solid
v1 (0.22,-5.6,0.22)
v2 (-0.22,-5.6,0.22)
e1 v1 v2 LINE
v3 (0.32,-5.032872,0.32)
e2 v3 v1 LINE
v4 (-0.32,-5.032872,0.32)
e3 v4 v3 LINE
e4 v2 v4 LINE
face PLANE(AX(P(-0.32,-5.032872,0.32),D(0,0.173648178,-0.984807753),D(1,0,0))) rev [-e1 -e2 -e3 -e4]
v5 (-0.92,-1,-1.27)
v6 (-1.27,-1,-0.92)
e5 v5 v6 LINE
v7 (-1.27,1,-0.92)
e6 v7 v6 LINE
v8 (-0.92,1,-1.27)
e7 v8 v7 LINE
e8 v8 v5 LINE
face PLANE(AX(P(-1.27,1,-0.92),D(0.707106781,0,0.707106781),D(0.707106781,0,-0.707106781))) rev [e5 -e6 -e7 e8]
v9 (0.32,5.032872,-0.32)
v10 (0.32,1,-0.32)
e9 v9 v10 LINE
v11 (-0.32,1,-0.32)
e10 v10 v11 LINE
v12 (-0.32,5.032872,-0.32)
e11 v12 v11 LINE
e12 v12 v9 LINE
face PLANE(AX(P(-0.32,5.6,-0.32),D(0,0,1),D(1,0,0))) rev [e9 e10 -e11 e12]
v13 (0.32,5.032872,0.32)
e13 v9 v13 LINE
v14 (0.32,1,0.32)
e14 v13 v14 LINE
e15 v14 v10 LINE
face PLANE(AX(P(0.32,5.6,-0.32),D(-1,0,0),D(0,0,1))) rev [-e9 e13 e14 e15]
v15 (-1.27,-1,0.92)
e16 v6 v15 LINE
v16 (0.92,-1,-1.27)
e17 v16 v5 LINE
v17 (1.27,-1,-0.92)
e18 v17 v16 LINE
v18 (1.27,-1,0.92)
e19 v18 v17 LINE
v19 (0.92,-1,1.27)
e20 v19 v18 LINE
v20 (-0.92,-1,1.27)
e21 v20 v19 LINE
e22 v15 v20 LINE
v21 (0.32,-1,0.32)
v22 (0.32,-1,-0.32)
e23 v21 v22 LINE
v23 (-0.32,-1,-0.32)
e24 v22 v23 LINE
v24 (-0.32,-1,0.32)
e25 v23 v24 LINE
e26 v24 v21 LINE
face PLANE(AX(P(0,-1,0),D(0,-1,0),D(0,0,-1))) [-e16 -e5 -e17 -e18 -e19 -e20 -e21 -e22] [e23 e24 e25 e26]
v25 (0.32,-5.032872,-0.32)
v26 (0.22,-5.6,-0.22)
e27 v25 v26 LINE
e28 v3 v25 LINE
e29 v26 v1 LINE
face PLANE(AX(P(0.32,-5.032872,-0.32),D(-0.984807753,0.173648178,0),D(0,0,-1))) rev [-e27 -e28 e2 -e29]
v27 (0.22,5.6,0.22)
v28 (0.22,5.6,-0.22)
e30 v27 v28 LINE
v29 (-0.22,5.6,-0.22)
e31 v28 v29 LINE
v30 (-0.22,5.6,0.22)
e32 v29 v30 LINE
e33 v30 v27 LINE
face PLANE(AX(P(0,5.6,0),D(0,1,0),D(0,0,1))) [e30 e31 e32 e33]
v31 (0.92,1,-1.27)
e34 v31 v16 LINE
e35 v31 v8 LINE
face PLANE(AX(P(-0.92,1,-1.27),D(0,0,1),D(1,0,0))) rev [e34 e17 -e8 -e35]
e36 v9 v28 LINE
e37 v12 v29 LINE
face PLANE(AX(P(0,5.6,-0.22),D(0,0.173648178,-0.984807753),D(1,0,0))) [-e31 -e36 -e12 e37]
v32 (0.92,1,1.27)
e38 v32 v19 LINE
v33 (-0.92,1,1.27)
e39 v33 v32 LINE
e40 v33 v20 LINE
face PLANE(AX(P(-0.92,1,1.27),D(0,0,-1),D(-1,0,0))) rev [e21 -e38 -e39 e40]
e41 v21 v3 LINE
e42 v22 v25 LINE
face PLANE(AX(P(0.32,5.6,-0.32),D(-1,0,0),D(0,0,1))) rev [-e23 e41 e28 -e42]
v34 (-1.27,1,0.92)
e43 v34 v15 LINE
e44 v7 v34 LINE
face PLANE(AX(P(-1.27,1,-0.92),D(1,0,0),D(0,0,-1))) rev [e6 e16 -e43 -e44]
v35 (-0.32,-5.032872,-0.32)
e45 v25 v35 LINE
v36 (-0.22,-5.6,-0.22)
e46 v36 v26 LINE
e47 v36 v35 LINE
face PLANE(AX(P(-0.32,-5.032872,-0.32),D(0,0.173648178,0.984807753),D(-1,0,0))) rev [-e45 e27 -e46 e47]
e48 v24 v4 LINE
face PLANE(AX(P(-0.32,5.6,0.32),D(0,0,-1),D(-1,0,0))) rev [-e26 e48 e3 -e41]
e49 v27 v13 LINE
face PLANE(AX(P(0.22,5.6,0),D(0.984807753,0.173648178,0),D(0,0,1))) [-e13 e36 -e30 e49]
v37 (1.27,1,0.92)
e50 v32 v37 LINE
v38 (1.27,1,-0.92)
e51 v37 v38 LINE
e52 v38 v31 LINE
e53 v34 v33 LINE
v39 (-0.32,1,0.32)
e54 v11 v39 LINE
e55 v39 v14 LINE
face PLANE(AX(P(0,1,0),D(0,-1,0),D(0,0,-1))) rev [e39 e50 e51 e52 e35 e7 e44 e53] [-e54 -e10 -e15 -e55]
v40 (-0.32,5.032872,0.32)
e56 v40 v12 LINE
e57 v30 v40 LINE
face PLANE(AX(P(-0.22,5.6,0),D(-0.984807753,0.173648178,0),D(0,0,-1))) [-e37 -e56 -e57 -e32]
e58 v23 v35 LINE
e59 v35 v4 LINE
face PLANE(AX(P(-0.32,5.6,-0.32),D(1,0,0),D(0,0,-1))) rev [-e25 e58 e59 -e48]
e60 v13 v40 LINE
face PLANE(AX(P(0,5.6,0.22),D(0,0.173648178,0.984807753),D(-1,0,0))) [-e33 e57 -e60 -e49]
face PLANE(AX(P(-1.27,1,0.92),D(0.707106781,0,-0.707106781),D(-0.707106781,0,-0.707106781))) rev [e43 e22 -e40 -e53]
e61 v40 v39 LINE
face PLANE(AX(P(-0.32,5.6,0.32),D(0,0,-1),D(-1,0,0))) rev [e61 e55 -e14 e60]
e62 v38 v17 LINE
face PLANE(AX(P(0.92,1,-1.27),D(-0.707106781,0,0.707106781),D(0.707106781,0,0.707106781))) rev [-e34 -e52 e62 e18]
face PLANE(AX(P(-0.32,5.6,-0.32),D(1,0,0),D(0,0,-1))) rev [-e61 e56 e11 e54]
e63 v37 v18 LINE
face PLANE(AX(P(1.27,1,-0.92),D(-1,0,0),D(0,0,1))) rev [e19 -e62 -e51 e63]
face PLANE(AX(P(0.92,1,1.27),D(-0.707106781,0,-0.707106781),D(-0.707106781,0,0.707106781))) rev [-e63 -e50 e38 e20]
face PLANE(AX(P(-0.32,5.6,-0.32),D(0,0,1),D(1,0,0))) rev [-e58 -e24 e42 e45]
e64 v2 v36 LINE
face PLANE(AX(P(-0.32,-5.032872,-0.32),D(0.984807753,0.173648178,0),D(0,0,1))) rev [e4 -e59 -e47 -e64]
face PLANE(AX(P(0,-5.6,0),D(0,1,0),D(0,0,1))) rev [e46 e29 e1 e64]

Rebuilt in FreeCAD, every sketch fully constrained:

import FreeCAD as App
import Part
import Sketcher
from FreeCAD import Vector


def edges_at(feature, points):
    """Names of the edges that pass closest to the given points."""
    edges = feature.Shape.Edges
    near = lambda p: min(range(len(edges)), key=lambda i: edges[i].distToShape(Part.Vertex(*p))[0])
    return sorted({f"Edge{near(p) + 1}" for p in points})


def add_polygon(sketch, points):
    """Adds a closed chain of lines whose ends are joined by coincident constraints."""
    first, n = sketch.GeometryCount, len(points)
    for a, b in zip(points, points[1:] + points[:1]):
        sketch.addGeometry(Part.LineSegment(App.Vector(*a, 0), App.Vector(*b, 0)), False)
    for i in range(n):
        sketch.addConstraint(Sketcher.Constraint("Coincident", first + i, 2, first + (i + 1) % n, 1))

doc = App.newDocument("Part")
body = doc.addObject("PartDesign::Body", "Body")

# Sketch on XZ plane
sketch1 = body.newObject("Sketcher::SketchObject", "Sketch")
sketch1.AttachmentSupport = (doc.getObject("XZ_Plane"), [""])
sketch1.MapMode = "FlatFace"
add_polygon(sketch1, [(-0.92, -1.27), (-1.27, -0.92), (-1.27, 0.92), (-0.92, 1.27), (0.92, 1.27), (1.27, 0.92), (1.27, -0.92), (0.92, -1.27)])  # lines 0-7
sketch1.addConstraint([
    Sketcher.Constraint("Vertical", 1),
    Sketcher.Constraint("Horizontal", 3),
    Sketcher.Constraint("Vertical", 5),
    Sketcher.Constraint("Horizontal", 7),
    Sketcher.Constraint("Symmetric", 0, 2, 4, 2, -1, 1),
    Sketcher.Constraint("Symmetric", 2, 2, 6, 2, -1, 1),
    Sketcher.Constraint("Perpendicular", 0, 2),
    Sketcher.Constraint("Perpendicular", 2, 4),
    Sketcher.Constraint("Perpendicular", 4, 6),
    Sketcher.Constraint("Horizontal", 1, 2, 4, 2),
    Sketcher.Constraint("Vertical", 3, 2, 6, 2),
    Sketcher.Constraint("Equal", 7, 1),
    Sketcher.Constraint("DistanceX", 3, 1, 3, 2, 1.84),
    Sketcher.Constraint("DistanceX", 0, 2, -1, 1, 1.27),
])
pad1 = body.newObject("PartDesign::Pad", "Pad")
pad1.Profile = sketch1
pad1.Length = 2
pad1.Midplane = True

# Sketch on XZ plane
sketch2 = body.newObject("Sketcher::SketchObject", "Sketch001")
sketch2.AttachmentSupport = (doc.getObject("XZ_Plane"), [""])
sketch2.MapMode = "FlatFace"
add_polygon(sketch2, [(-0.32, -0.32), (-0.32, 0.32), (0.32, 0.32), (0.32, -0.32)])  # lines 0-3
sketch2.addConstraint([
    Sketcher.Constraint("Vertical", 0),
    Sketcher.Constraint("Horizontal", 1),
    Sketcher.Constraint("Vertical", 2),
    Sketcher.Constraint("Horizontal", 3),
    Sketcher.Constraint("Symmetric", 0, 2, 2, 2, -1, 1),
    Sketcher.Constraint("Equal", 3, 0),
    Sketcher.Constraint("DistanceX", 1, 1, 1, 2, 0.64),
])
pad2 = body.newObject("PartDesign::Pad", "Pad001")
pad2.Profile = sketch2
pad2.Length = 11.2
pad2.Midplane = True
doc.recompute()

chamfer = body.newObject("PartDesign::Chamfer", "Chamfer")
chamfer.Base = (pad2, edges_at(pad2, [
    (0.32, -5.6, 0),
    (0, -5.6, -0.32),
    (-0.32, -5.6, 0),
    (0, -5.6, 0.32),
]))
chamfer.ChamferType = "Two distances"
chamfer.Size = 0.1
chamfer.Size2 = 0.567128
chamfer.FlipDirection = True
doc.recompute()

chamfer2 = body.newObject("PartDesign::Chamfer", "Chamfer001")
chamfer2.Base = (chamfer, edges_at(chamfer, [
    (0.32, 5.6, 0),
    (0, 5.6, -0.32),
    (-0.32, 5.6, 0),
    (0, 5.6, 0.32),
]))
chamfer2.ChamferType = "Two distances"
chamfer2.Size = 0.1
chamfer2.Size2 = 0.567128
chamfer2.FlipDirection = True

doc.recompute()
